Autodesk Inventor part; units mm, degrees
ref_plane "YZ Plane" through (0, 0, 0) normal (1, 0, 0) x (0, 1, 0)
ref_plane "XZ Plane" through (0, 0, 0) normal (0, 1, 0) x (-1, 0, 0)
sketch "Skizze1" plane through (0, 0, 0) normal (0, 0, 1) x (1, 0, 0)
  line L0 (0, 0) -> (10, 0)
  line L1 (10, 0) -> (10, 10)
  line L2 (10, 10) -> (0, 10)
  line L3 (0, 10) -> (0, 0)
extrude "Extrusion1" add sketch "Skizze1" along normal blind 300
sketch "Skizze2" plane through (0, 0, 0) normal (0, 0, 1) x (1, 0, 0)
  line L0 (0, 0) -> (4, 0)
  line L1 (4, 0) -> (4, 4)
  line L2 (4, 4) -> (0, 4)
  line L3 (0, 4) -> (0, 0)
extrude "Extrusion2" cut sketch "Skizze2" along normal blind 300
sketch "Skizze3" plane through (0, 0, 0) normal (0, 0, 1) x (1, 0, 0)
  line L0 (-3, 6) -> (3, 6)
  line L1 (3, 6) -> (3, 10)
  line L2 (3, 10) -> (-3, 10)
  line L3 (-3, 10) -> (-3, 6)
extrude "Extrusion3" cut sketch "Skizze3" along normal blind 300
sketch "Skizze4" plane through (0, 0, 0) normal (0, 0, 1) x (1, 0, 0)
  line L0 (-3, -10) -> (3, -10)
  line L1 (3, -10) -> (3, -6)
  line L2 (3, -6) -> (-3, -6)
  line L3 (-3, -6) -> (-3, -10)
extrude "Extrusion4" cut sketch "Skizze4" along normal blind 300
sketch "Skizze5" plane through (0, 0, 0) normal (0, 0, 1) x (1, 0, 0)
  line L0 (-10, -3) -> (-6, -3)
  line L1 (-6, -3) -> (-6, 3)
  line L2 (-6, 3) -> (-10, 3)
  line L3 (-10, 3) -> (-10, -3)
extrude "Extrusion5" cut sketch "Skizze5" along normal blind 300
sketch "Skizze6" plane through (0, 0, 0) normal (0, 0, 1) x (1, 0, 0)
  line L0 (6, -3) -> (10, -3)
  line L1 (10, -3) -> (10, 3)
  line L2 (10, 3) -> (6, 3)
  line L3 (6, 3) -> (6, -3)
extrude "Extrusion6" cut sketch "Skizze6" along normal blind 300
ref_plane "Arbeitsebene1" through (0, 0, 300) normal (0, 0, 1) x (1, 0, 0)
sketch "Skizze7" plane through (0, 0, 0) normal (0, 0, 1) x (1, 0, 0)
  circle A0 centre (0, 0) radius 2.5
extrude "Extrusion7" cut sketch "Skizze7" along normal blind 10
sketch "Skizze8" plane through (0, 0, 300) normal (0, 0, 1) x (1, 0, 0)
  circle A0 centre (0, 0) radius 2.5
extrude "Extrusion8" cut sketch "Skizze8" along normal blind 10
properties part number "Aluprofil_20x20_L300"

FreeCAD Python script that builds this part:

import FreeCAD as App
import Part
import Sketcher
from FreeCAD import Vector
Q = App.Units.Quantity

doc = App.newDocument("Part")
body = doc.addObject("PartDesign::Body", "Body")

# Sketch on XY plane
sketch1 = body.newObject("Sketcher::SketchObject", "Sketch")
sketch1.AttachmentSupport = (doc.getObject("XY_Plane"), [""])
sketch1.MapMode = "FlatFace"
sketch1.addGeometry(Part.LineSegment(Vector(0, 10, 0), Vector(0, 0, 0)), False)
sketch1.addGeometry(Part.LineSegment(Vector(0, 0, 0), Vector(10, 0, 0)), False)
sketch1.addGeometry(Part.LineSegment(Vector(10, 0, 0), Vector(10, 10, 0)), False)
sketch1.addGeometry(Part.LineSegment(Vector(10, 10, 0), Vector(0, 10, 0)), False)
sketch1.addConstraint(Sketcher.Constraint("Coincident", 0, 2, 1, 1))
sketch1.addConstraint(Sketcher.Constraint("Coincident", 1, 2, 2, 1))
sketch1.addConstraint(Sketcher.Constraint("Coincident", 2, 2, 3, 1))
sketch1.addConstraint(Sketcher.Constraint("Coincident", 3, 2, 0, 1))
sketch1.addConstraint(Sketcher.Constraint("Vertical", 0))
sketch1.addConstraint(Sketcher.Constraint("Horizontal", 1))
sketch1.addConstraint(Sketcher.Constraint("Vertical", 2))
sketch1.addConstraint(Sketcher.Constraint("Horizontal", 3))
sketch1.addConstraint(Sketcher.Constraint("Coincident", 0, 2, -1, 1))
sketch1.addConstraint(Sketcher.Constraint("Equal", 3, 0))
sketch1.addConstraint(Sketcher.Constraint("DistanceX", 1, 1, 1, 2, Q("10 mm")))
pad1 = body.newObject("PartDesign::Pad", "Pad")
pad1.Profile = sketch1
pad1.Length = 300

# Sketch on XY plane
sketch2 = body.newObject("Sketcher::SketchObject", "Sketch001")
sketch2.AttachmentSupport = (doc.getObject("XY_Plane"), [""])
sketch2.MapMode = "FlatFace"
sketch2.addGeometry(Part.LineSegment(Vector(0, 4, 0), Vector(0, 0, 0)), False)
sketch2.addGeometry(Part.LineSegment(Vector(0, 0, 0), Vector(4, 0, 0)), False)
sketch2.addGeometry(Part.LineSegment(Vector(4, 0, 0), Vector(4, 4, 0)), False)
sketch2.addGeometry(Part.LineSegment(Vector(4, 4, 0), Vector(0, 4, 0)), False)
sketch2.addConstraint(Sketcher.Constraint("Coincident", 0, 2, 1, 1))
sketch2.addConstraint(Sketcher.Constraint("Coincident", 1, 2, 2, 1))
sketch2.addConstraint(Sketcher.Constraint("Coincident", 2, 2, 3, 1))
sketch2.addConstraint(Sketcher.Constraint("Coincident", 3, 2, 0, 1))
sketch2.addConstraint(Sketcher.Constraint("Vertical", 0))
sketch2.addConstraint(Sketcher.Constraint("Horizontal", 1))
sketch2.addConstraint(Sketcher.Constraint("Vertical", 2))
sketch2.addConstraint(Sketcher.Constraint("Horizontal", 3))
sketch2.addConstraint(Sketcher.Constraint("Coincident", 0, 2, -1, 1))
sketch2.addConstraint(Sketcher.Constraint("Equal", 3, 0))
sketch2.addConstraint(Sketcher.Constraint("DistanceX", 1, 1, 1, 2, Q("4 mm")))
pocket1 = body.newObject("PartDesign::Pocket", "Pocket")
pocket1.Profile = sketch2
pocket1.Length = 300
pocket1.Reversed = True

# Sketch on XY plane
sketch3 = body.newObject("Sketcher::SketchObject", "Sketch002")
sketch3.AttachmentSupport = (doc.getObject("XY_Plane"), [""])
sketch3.MapMode = "FlatFace"
sketch3.addGeometry(Part.LineSegment(Vector(-3, 10, 0), Vector(-3, 6, 0)), False)
sketch3.addGeometry(Part.LineSegment(Vector(-3, 6, 0), Vector(3, 6, 0)), False)
sketch3.addGeometry(Part.LineSegment(Vector(3, 6, 0), Vector(3, 10, 0)), False)
sketch3.addGeometry(Part.LineSegment(Vector(3, 10, 0), Vector(-3, 10, 0)), False)
sketch3.addConstraint(Sketcher.Constraint("Coincident", 0, 2, 1, 1))
sketch3.addConstraint(Sketcher.Constraint("Coincident", 1, 2, 2, 1))
sketch3.addConstraint(Sketcher.Constraint("Coincident", 2, 2, 3, 1))
sketch3.addConstraint(Sketcher.Constraint("Coincident", 3, 2, 0, 1))
sketch3.addConstraint(Sketcher.Constraint("Vertical", 0))
sketch3.addConstraint(Sketcher.Constraint("Horizontal", 1))
sketch3.addConstraint(Sketcher.Constraint("Vertical", 2))
sketch3.addConstraint(Sketcher.Constraint("Horizontal", 3))
sketch3.addConstraint(Sketcher.Constraint("DistanceX", 1, 1, 1, 2, Q("6 mm")))
sketch3.addConstraint(Sketcher.Constraint("DistanceY", 0, 2, 0, 1, Q("4 mm")))
sketch3.addConstraint(Sketcher.Constraint("DistanceX", 0, 2, -1, 1, Q("3 mm")))
sketch3.addConstraint(Sketcher.Constraint("DistanceY", -1, 1, 0, 2, Q("6 mm")))
pocket2 = body.newObject("PartDesign::Pocket", "Pocket001")
pocket2.Profile = sketch3
pocket2.Length = 300
pocket2.Reversed = True

# Sketch on XY plane
sketch4 = body.newObject("Sketcher::SketchObject", "Sketch003")
sketch4.AttachmentSupport = (doc.getObject("XY_Plane"), [""])
sketch4.MapMode = "FlatFace"
sketch4.addGeometry(Part.LineSegment(Vector(-3, -6, 0), Vector(-3, -10, 0)), False)
sketch4.addGeometry(Part.LineSegment(Vector(-3, -10, 0), Vector(3, -10, 0)), False)
sketch4.addGeometry(Part.LineSegment(Vector(3, -10, 0), Vector(3, -6, 0)), False)
sketch4.addGeometry(Part.LineSegment(Vector(3, -6, 0), Vector(-3, -6, 0)), False)
sketch4.addConstraint(Sketcher.Constraint("Coincident", 0, 2, 1, 1))
sketch4.addConstraint(Sketcher.Constraint("Coincident", 1, 2, 2, 1))
sketch4.addConstraint(Sketcher.Constraint("Coincident", 2, 2, 3, 1))
sketch4.addConstraint(Sketcher.Constraint("Coincident", 3, 2, 0, 1))
sketch4.addConstraint(Sketcher.Constraint("Vertical", 0))
sketch4.addConstraint(Sketcher.Constraint("Horizontal", 1))
sketch4.addConstraint(Sketcher.Constraint("Vertical", 2))
sketch4.addConstraint(Sketcher.Constraint("Horizontal", 3))
sketch4.addConstraint(Sketcher.Constraint("DistanceX", 1, 1, 1, 2, Q("6 mm")))
sketch4.addConstraint(Sketcher.Constraint("DistanceY", 0, 2, 0, 1, Q("4 mm")))
sketch4.addConstraint(Sketcher.Constraint("DistanceX", 0, 2, -1, 1, Q("3 mm")))
sketch4.addConstraint(Sketcher.Constraint("DistanceY", 0, 2, -1, 1, Q("10 mm")))
pocket3 = body.newObject("PartDesign::Pocket", "Pocket002")
pocket3.Profile = sketch4
pocket3.Length = 300
pocket3.Reversed = True

# Sketch on XY plane
sketch5 = body.newObject("Sketcher::SketchObject", "Sketch004")
sketch5.AttachmentSupport = (doc.getObject("XY_Plane"), [""])
sketch5.MapMode = "FlatFace"
sketch5.addGeometry(Part.LineSegment(Vector(-10, 3, 0), Vector(-10, -3, 0)), False)
sketch5.addGeometry(Part.LineSegment(Vector(-10, -3, 0), Vector(-6, -3, 0)), False)
sketch5.addGeometry(Part.LineSegment(Vector(-6, -3, 0), Vector(-6, 3, 0)), False)
sketch5.addGeometry(Part.LineSegment(Vector(-6, 3, 0), Vector(-10, 3, 0)), False)
sketch5.addConstraint(Sketcher.Constraint("Coincident", 0, 2, 1, 1))
sketch5.addConstraint(Sketcher.Constraint("Coincident", 1, 2, 2, 1))
sketch5.addConstraint(Sketcher.Constraint("Coincident", 2, 2, 3, 1))
sketch5.addConstraint(Sketcher.Constraint("Coincident", 3, 2, 0, 1))
sketch5.addConstraint(Sketcher.Constraint("Vertical", 0))
sketch5.addConstraint(Sketcher.Constraint("Horizontal", 1))
sketch5.addConstraint(Sketcher.Constraint("Vertical", 2))
sketch5.addConstraint(Sketcher.Constraint("Horizontal", 3))
sketch5.addConstraint(Sketcher.Constraint("DistanceX", 1, 1, 1, 2, Q("4 mm")))
sketch5.addConstraint(Sketcher.Constraint("DistanceY", 0, 2, 0, 1, Q("6 mm")))
sketch5.addConstraint(Sketcher.Constraint("DistanceX", 0, 2, -1, 1, Q("10 mm")))
sketch5.addConstraint(Sketcher.Constraint("DistanceY", 0, 2, -1, 1, Q("3 mm")))
pocket4 = body.newObject("PartDesign::Pocket", "Pocket003")
pocket4.Profile = sketch5
pocket4.Length = 300
pocket4.Reversed = True

# Sketch on XY plane
sketch6 = body.newObject("Sketcher::SketchObject", "Sketch005")
sketch6.AttachmentSupport = (doc.getObject("XY_Plane"), [""])
sketch6.MapMode = "FlatFace"
sketch6.addGeometry(Part.LineSegment(Vector(6, 3, 0), Vector(6, -3, 0)), False)
sketch6.addGeometry(Part.LineSegment(Vector(6, -3, 0), Vector(10, -3, 0)), False)
sketch6.addGeometry(Part.LineSegment(Vector(10, -3, 0), Vector(10, 3, 0)), False)
sketch6.addGeometry(Part.LineSegment(Vector(10, 3, 0), Vector(6, 3, 0)), False)
sketch6.addConstraint(Sketcher.Constraint("Coincident", 0, 2, 1, 1))
sketch6.addConstraint(Sketcher.Constraint("Coincident", 1, 2, 2, 1))
sketch6.addConstraint(Sketcher.Constraint("Coincident", 2, 2, 3, 1))
sketch6.addConstraint(Sketcher.Constraint("Coincident", 3, 2, 0, 1))
sketch6.addConstraint(Sketcher.Constraint("Vertical", 0))
sketch6.addConstraint(Sketcher.Constraint("Horizontal", 1))
sketch6.addConstraint(Sketcher.Constraint("Vertical", 2))
sketch6.addConstraint(Sketcher.Constraint("Horizontal", 3))
sketch6.addConstraint(Sketcher.Constraint("DistanceX", 1, 1, 1, 2, Q("4 mm")))
sketch6.addConstraint(Sketcher.Constraint("DistanceY", 0, 2, 0, 1, Q("6 mm")))
sketch6.addConstraint(Sketcher.Constraint("DistanceX", -1, 1, 0, 2, Q("6 mm")))
sketch6.addConstraint(Sketcher.Constraint("DistanceY", 0, 2, -1, 1, Q("3 mm")))
pocket5 = body.newObject("PartDesign::Pocket", "Pocket004")
pocket5.Profile = sketch6
pocket5.Length = 300
pocket5.Reversed = True

# Sketch on XY plane
sketch7 = body.newObject("Sketcher::SketchObject", "Sketch006")
sketch7.AttachmentSupport = (doc.getObject("XY_Plane"), [""])
sketch7.MapMode = "FlatFace"
sketch7.addGeometry(Part.Circle(Vector(0, 0, 0), Vector(0, 0, 1), 2.5), False)
sketch7.addConstraint(Sketcher.Constraint("Coincident", 0, 3, -1, 1))
sketch7.addConstraint(Sketcher.Constraint("Diameter", 0, Q("5 mm")))
pocket6 = body.newObject("PartDesign::Pocket", "Pocket005")
pocket6.Profile = sketch7
pocket6.Length = 10
pocket6.Reversed = True

# Sketch on XY plane
sketch8 = body.newObject("Sketcher::SketchObject", "Sketch007")
sketch8.AttachmentSupport = (doc.getObject("XY_Plane"), [""])
sketch8.MapMode = "FlatFace"
sketch8.AttachmentOffset = App.Placement(Vector(0, 0, 300), App.Rotation())
sketch8.addGeometry(Part.Circle(Vector(0, 0, 0), Vector(0, 0, 1), 2.5), False)
sketch8.addConstraint(Sketcher.Constraint("Coincident", 0, 3, -1, 1))
sketch8.addConstraint(Sketcher.Constraint("Diameter", 0, Q("5 mm")))
pocket7 = body.newObject("PartDesign::Pocket", "Pocket006")
pocket7.Profile = sketch8
pocket7.Length = 10
pocket7.Reversed = True

doc.recompute()
